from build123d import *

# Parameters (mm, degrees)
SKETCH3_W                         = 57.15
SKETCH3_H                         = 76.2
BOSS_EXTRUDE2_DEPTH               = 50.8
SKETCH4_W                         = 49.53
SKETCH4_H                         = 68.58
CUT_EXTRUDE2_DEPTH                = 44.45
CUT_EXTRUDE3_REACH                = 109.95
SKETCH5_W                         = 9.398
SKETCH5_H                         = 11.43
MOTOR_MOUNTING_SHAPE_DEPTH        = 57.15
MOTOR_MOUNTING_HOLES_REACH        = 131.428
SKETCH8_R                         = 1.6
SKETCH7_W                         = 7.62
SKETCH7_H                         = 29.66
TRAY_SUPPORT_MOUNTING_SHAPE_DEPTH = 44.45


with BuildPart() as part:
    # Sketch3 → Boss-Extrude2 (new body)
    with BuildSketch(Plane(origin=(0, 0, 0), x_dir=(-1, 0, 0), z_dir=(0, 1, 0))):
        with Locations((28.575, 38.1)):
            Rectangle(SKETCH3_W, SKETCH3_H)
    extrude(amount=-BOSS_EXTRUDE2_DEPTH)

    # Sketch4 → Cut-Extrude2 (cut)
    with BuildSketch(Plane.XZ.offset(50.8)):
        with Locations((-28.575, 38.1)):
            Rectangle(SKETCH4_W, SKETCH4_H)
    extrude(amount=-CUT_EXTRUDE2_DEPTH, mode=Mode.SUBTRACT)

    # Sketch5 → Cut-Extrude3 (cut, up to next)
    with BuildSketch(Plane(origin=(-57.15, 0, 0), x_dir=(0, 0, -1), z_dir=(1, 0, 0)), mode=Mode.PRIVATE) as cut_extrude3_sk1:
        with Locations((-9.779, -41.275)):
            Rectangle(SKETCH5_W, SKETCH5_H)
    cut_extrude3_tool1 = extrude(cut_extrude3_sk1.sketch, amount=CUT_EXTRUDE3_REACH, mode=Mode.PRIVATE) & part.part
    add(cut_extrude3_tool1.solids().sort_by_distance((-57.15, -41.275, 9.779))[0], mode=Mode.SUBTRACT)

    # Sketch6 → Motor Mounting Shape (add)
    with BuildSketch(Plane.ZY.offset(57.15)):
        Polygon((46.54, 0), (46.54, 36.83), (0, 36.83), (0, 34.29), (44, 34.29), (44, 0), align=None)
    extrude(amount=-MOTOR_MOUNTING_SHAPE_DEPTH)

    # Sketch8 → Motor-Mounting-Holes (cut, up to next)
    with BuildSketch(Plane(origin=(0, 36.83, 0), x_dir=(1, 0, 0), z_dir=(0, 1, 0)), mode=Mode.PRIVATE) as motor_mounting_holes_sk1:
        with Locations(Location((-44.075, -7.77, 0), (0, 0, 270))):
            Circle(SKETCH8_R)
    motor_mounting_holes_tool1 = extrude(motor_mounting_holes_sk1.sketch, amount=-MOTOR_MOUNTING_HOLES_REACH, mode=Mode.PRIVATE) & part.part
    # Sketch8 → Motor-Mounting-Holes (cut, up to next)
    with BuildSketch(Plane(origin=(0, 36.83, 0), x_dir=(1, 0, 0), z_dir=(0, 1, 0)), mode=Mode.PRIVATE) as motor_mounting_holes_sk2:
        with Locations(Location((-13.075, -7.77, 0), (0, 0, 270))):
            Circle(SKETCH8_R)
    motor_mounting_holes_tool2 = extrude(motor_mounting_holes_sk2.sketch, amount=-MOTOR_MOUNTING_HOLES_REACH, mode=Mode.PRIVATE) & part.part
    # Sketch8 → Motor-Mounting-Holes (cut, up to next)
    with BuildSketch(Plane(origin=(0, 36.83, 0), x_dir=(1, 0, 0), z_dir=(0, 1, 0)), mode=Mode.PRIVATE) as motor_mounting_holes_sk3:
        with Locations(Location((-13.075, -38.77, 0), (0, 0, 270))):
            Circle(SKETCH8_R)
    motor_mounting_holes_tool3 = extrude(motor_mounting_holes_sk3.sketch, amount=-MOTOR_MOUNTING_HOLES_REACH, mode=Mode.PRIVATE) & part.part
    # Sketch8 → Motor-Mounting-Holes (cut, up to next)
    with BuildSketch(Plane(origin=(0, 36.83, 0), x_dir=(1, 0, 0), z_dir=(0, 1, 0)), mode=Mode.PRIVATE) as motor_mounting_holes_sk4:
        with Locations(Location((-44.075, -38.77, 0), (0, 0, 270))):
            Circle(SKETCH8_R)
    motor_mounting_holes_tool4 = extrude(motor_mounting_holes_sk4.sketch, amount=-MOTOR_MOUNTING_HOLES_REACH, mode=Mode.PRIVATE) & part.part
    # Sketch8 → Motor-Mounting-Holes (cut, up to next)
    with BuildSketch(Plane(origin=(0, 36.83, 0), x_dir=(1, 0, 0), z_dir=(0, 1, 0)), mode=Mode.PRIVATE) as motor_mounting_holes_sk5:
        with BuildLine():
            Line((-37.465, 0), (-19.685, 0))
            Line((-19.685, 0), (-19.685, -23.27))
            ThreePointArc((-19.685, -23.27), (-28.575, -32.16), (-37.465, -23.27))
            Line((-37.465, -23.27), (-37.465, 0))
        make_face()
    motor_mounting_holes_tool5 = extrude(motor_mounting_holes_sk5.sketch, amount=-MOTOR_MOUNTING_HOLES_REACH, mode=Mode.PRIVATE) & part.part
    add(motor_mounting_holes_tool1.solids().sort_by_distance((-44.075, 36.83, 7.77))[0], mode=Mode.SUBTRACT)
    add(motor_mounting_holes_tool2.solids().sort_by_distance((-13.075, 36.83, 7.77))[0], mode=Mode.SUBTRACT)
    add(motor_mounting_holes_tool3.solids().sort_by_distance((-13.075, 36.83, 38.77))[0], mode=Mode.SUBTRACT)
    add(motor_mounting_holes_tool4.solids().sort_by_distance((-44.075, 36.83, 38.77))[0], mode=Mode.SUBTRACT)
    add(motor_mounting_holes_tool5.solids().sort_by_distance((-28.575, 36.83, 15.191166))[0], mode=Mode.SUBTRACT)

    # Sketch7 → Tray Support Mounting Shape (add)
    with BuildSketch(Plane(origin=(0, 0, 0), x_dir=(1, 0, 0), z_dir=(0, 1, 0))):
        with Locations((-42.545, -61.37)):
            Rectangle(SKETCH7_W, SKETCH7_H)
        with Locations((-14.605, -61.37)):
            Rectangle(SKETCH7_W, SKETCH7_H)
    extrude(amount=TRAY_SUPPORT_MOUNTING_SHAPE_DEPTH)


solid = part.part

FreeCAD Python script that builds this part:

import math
import FreeCAD as App
import Part
import Sketcher

V = App.Vector
Q = App.Units.Quantity

doc = App.newDocument("Part")
body = doc.addObject("PartDesign::Body", "Body")

# Sketch on XZ plane
sketch1 = body.newObject("Sketcher::SketchObject", "Sketch")
sketch1.AttachmentSupport = (doc.getObject("XZ_Plane"), [""])
sketch1.MapMode = "FlatFace"
sketch1.addGeometry(Part.LineSegment(V(0, 76, 0), V(0, 0, 0)), False)
sketch1.addGeometry(Part.LineSegment(V(0, 0, 0), V(-57, 0, 0)), False)
sketch1.addGeometry(Part.LineSegment(V(-57, 0, 0), V(-57, 76, 0)), False)
sketch1.addGeometry(Part.LineSegment(V(-57, 76, 0), V(0, 76, 0)), False)
sketch1.addConstraint(Sketcher.Constraint("Coincident", 0, 2, 1, 1))
sketch1.addConstraint(Sketcher.Constraint("Coincident", 1, 2, 2, 1))
sketch1.addConstraint(Sketcher.Constraint("Coincident", 2, 2, 3, 1))
sketch1.addConstraint(Sketcher.Constraint("Coincident", 3, 2, 0, 1))
sketch1.addConstraint(Sketcher.Constraint("Vertical", 0))
sketch1.addConstraint(Sketcher.Constraint("Horizontal", 1))
sketch1.addConstraint(Sketcher.Constraint("Vertical", 2))
sketch1.addConstraint(Sketcher.Constraint("Horizontal", 3))
sketch1.addConstraint(Sketcher.Constraint("Coincident", 0, 2, -1, 1))
sketch1.addConstraint(Sketcher.Constraint("DistanceY", 0, 2, 0, 1, Q("3 in")))
sketch1.addConstraint(Sketcher.Constraint("DistanceX", 1, 2, 1, 1, Q("2.25 in")))
pad1 = body.newObject("PartDesign::Pad", "Pad")
pad1.Profile = sketch1
pad1.Length = Q("2 in")

# Sketch on XZ plane
sketch2 = body.newObject("Sketcher::SketchObject", "Sketch001")
sketch2.AttachmentSupport = (doc.getObject("XZ_Plane"), [""])
sketch2.MapMode = "FlatFace"
sketch2.AttachmentOffset = App.Placement(V(0, 0, 2 * 25.4), App.Rotation())
sketch2.addGeometry(Part.LineSegment(V(-53, 72, 0), V(-53, 4, 0)), False)
sketch2.addGeometry(Part.LineSegment(V(-53, 4, 0), V(-4, 4, 0)), False)
sketch2.addGeometry(Part.LineSegment(V(-4, 4, 0), V(-4, 72, 0)), False)
sketch2.addGeometry(Part.LineSegment(V(-4, 72, 0), V(-53, 72, 0)), False)
sketch2.addConstraint(Sketcher.Constraint("Coincident", 0, 2, 1, 1))
sketch2.addConstraint(Sketcher.Constraint("Coincident", 1, 2, 2, 1))
sketch2.addConstraint(Sketcher.Constraint("Coincident", 2, 2, 3, 1))
sketch2.addConstraint(Sketcher.Constraint("Coincident", 3, 2, 0, 1))
sketch2.addConstraint(Sketcher.Constraint("Vertical", 0))
sketch2.addConstraint(Sketcher.Constraint("Horizontal", 1))
sketch2.addConstraint(Sketcher.Constraint("Vertical", 2))
sketch2.addConstraint(Sketcher.Constraint("Horizontal", 3))
sketch2.addConstraint(Sketcher.Constraint("DistanceY", 0, 2, 0, 1, Q("2.7 in")))
sketch2.addConstraint(Sketcher.Constraint("DistanceX", 1, 1, 1, 2, Q("1.95 in")))
sketch2.addConstraint(Sketcher.Constraint("DistanceX", 0, 2, -1, 1, Q("2.1 in")))
sketch2.addConstraint(Sketcher.Constraint("DistanceY", -1, 1, 0, 2, Q("0.15 in")))
pocket1 = body.newObject("PartDesign::Pocket", "Pocket")
pocket1.Profile = sketch2
pocket1.Length = Q("1.75 in")

# Sketch on YZ plane
sketch3 = body.newObject("Sketcher::SketchObject", "Sketch002")
sketch3.AttachmentSupport = (doc.getObject("YZ_Plane"), [""])
sketch3.MapMode = "FlatFace"
sketch3.AttachmentOffset = App.Placement(V(0, 0, -2.25 * 25.4), App.Rotation())
sketch3.addGeometry(Part.LineSegment(V(-36, 14, 0), V(-47, 14, 0)), False)
sketch3.addGeometry(Part.LineSegment(V(-47, 14, 0), V(-47, 5, 0)), False)
sketch3.addGeometry(Part.LineSegment(V(-47, 5, 0), V(-36, 5, 0)), False)
sketch3.addGeometry(Part.LineSegment(V(-36, 5, 0), V(-36, 14, 0)), False)
sketch3.addConstraint(Sketcher.Constraint("Coincident", 0, 2, 1, 1))
sketch3.addConstraint(Sketcher.Constraint("Coincident", 1, 2, 2, 1))
sketch3.addConstraint(Sketcher.Constraint("Coincident", 2, 2, 3, 1))
sketch3.addConstraint(Sketcher.Constraint("Coincident", 3, 2, 0, 1))
sketch3.addConstraint(Sketcher.Constraint("Horizontal", 0))
sketch3.addConstraint(Sketcher.Constraint("Vertical", 1))
sketch3.addConstraint(Sketcher.Constraint("Horizontal", 2))
sketch3.addConstraint(Sketcher.Constraint("Vertical", 3))
sketch3.addConstraint(Sketcher.Constraint("DistanceX", 0, 2, 0, 1, Q("0.45 in")))
sketch3.addConstraint(Sketcher.Constraint("DistanceY", 1, 2, 1, 1, Q("0.37 in")))
sketch3.addConstraint(Sketcher.Constraint("DistanceY", -1, 1, 1, 2, Q("0.2 in")))
sketch3.addConstraint(Sketcher.Constraint("DistanceX", 2, 2, -1, 1, Q("1.4 in")))
pocket2 = body.newObject("PartDesign::Pocket", "Pocket001")
pocket2.Profile = sketch3
pocket2.Type = "UpToFirst"
pocket2.Reversed = True

# Sketch on YZ plane
sketch4 = body.newObject("Sketcher::SketchObject", "Sketch003")
sketch4.AttachmentSupport = (doc.getObject("YZ_Plane"), [""])
sketch4.MapMode = "FlatFace"
sketch4.AttachmentOffset = App.Placement(V(0, 0, -2.25 * 25.4), App.Rotation())
sketch4.addGeometry(Part.LineSegment(V(0, 46.5, 0), V(36.8, 46.5, 0)), False)
sketch4.addGeometry(Part.LineSegment(V(36.8, 46.5, 0), V(36.8, 0, 0)), False)
sketch4.addGeometry(Part.LineSegment(V(36.8, 0, 0), V(34.3, 0, 0)), False)
sketch4.addGeometry(Part.LineSegment(V(34.3, 0, 0), V(34.3, 44, 0)), False)
sketch4.addGeometry(Part.LineSegment(V(34.3, 44, 0), V(0, 44, 0)), False)
sketch4.addGeometry(Part.LineSegment(V(0, 44, 0), V(0, 46.5, 0)), False)
sketch4.addConstraint(Sketcher.Constraint("Coincident", 0, 2, 1, 1))
sketch4.addConstraint(Sketcher.Constraint("Coincident", 1, 2, 2, 1))
sketch4.addConstraint(Sketcher.Constraint("Coincident", 2, 2, 3, 1))
sketch4.addConstraint(Sketcher.Constraint("Coincident", 3, 2, 4, 1))
sketch4.addConstraint(Sketcher.Constraint("Coincident", 4, 2, 5, 1))
sketch4.addConstraint(Sketcher.Constraint("Coincident", 5, 2, 0, 1))
sketch4.addConstraint(Sketcher.Constraint("Horizontal", 0))
sketch4.addConstraint(Sketcher.Constraint("Vertical", 1))
sketch4.addConstraint(Sketcher.Constraint("Horizontal", 2))
sketch4.addConstraint(Sketcher.Constraint("Vertical", 3))
sketch4.addConstraint(Sketcher.Constraint("Horizontal", 4))
sketch4.addConstraint(Sketcher.Constraint("Vertical", 5))
sketch4.addConstraint(Sketcher.Constraint("PointOnObject", 1, 2, -1))
sketch4.addConstraint(Sketcher.Constraint("PointOnObject", 4, 2, -2))
sketch4.addConstraint(Sketcher.Constraint("Equal", 2, 5))
sketch4.addConstraint(Sketcher.Constraint("DistanceX", 2, 2, 2, 1, Q("0.1 in")))
sketch4.addConstraint(Sketcher.Constraint("DistanceX", 0, 1, 0, 2, Q("1.45 in")))
sketch4.addConstraint(Sketcher.Constraint("DistanceY", 1, 2, 1, 1, 46.54))
pad2 = body.newObject("PartDesign::Pad", "Pad001")
pad2.Profile = sketch4
pad2.Length = Q("2.25 in")

# Sketch on XZ plane
sketch5 = body.newObject("Sketcher::SketchObject", "Sketch004")
sketch5.AttachmentSupport = (doc.getObject("XZ_Plane"), [""])
sketch5.MapMode = "FlatFace"
sketch5.AttachmentOffset = App.Placement(V(0, 0, -1.45 * 25.4), App.Rotation())
sketch5.addGeometry(Part.Circle(V(-44.1, 7.8, 0), V(0, 0, 1), 1.6), False)
sketch5.addConstraint(Sketcher.Constraint("Diameter", 0, 3.2))
sketch5.addConstraint(Sketcher.Constraint("DistanceX", 0, 3, -1, 1, 44.075))
sketch5.addConstraint(Sketcher.Constraint("DistanceY", -1, 1, 0, 3, 7.77))
pocket3 = body.newObject("PartDesign::Pocket", "Pocket002")
pocket3.Profile = sketch5
pocket3.Type = "UpToFirst"
pocket3.Reversed = True

# Sketch on XZ plane
sketch6 = body.newObject("Sketcher::SketchObject", "Sketch005")
sketch6.AttachmentSupport = (doc.getObject("XZ_Plane"), [""])
sketch6.MapMode = "FlatFace"
sketch6.AttachmentOffset = App.Placement(V(0, 0, -1.45 * 25.4), App.Rotation())
sketch6.addGeometry(Part.Circle(V(-13.1, 7.8, 0), V(0, 0, 1), 1.6), False)
sketch6.addConstraint(Sketcher.Constraint("Diameter", 0, 3.2))
sketch6.addConstraint(Sketcher.Constraint("DistanceX", 0, 3, -1, 1, 13.075))
sketch6.addConstraint(Sketcher.Constraint("DistanceY", -1, 1, 0, 3, 7.77))
pocket4 = body.newObject("PartDesign::Pocket", "Pocket003")
pocket4.Profile = sketch6
pocket4.Type = "UpToFirst"
pocket4.Reversed = True

# Sketch on XZ plane
sketch7 = body.newObject("Sketcher::SketchObject", "Sketch006")
sketch7.AttachmentSupport = (doc.getObject("XZ_Plane"), [""])
sketch7.MapMode = "FlatFace"
sketch7.AttachmentOffset = App.Placement(V(0, 0, -1.45 * 25.4), App.Rotation())
sketch7.addGeometry(Part.Circle(V(-13.1, 38.8, 0), V(0, 0, 1), 1.6), False)
sketch7.addConstraint(Sketcher.Constraint("Diameter", 0, 3.2))
sketch7.addConstraint(Sketcher.Constraint("DistanceX", 0, 3, -1, 1, 13.075))
sketch7.addConstraint(Sketcher.Constraint("DistanceY", -1, 1, 0, 3, 38.77))
pocket5 = body.newObject("PartDesign::Pocket", "Pocket004")
pocket5.Profile = sketch7
pocket5.Type = "UpToFirst"
pocket5.Reversed = True

# Sketch on XZ plane
sketch8 = body.newObject("Sketcher::SketchObject", "Sketch007")
sketch8.AttachmentSupport = (doc.getObject("XZ_Plane"), [""])
sketch8.MapMode = "FlatFace"
sketch8.AttachmentOffset = App.Placement(V(0, 0, -1.45 * 25.4), App.Rotation())
sketch8.addGeometry(Part.Circle(V(-44.1, 38.8, 0), V(0, 0, 1), 1.6), False)
sketch8.addConstraint(Sketcher.Constraint("Diameter", 0, 3.2))
sketch8.addConstraint(Sketcher.Constraint("DistanceX", 0, 3, -1, 1, 44.075))
sketch8.addConstraint(Sketcher.Constraint("DistanceY", -1, 1, 0, 3, 38.77))
pocket6 = body.newObject("PartDesign::Pocket", "Pocket005")
pocket6.Profile = sketch8
pocket6.Type = "UpToFirst"
pocket6.Reversed = True

# Sketch on XZ plane
sketch9 = body.newObject("Sketcher::SketchObject", "Sketch008")
sketch9.AttachmentSupport = (doc.getObject("XZ_Plane"), [""])
sketch9.MapMode = "FlatFace"
sketch9.AttachmentOffset = App.Placement(V(0, 0, -1.45 * 25.4), App.Rotation())
sketch9.addGeometry(Part.LineSegment(V(-20, 0, 0), V(-37, 0, 0)), False)
sketch9.addGeometry(Part.LineSegment(V(-37, 0, 0), V(-37, 23, 0)), False)
sketch9.addGeometry(Part.ArcOfCircle(Part.Circle(V(-29, 23, 0), V(0, 0, 1), 9), math.radians(0), math.radians(180)), False)
sketch9.addGeometry(Part.LineSegment(V(-20, 23, 0), V(-20, 0, 0)), False)
sketch9.addConstraint(Sketcher.Constraint("Coincident", 0, 2, 1, 1))
sketch9.addConstraint(Sketcher.Constraint("Tangent", 1, 2, 2, 2))
sketch9.addConstraint(Sketcher.Constraint("Tangent", 2, 1, 3, 1))
sketch9.addConstraint(Sketcher.Constraint("Coincident", 3, 2, 0, 1))
sketch9.addConstraint(Sketcher.Constraint("Horizontal", 0))
sketch9.addConstraint(Sketcher.Constraint("Vertical", 1))
sketch9.addConstraint(Sketcher.Constraint("Vertical", 3))
sketch9.addConstraint(Sketcher.Constraint("PointOnObject", 0, 2, -1))
sketch9.addConstraint(Sketcher.Constraint("Radius", 2, Q("0.35 in")))
sketch9.addConstraint(Sketcher.Constraint("DistanceX", 2, 3, -1, 1, Q("1.125 in")))
sketch9.addConstraint(Sketcher.Constraint("DistanceY", 1, 1, 1, 2, 23.27))
pocket7 = body.newObject("PartDesign::Pocket", "Pocket006")
pocket7.Profile = sketch9
pocket7.Type = "UpToFirst"
pocket7.Reversed = True

# Sketch on XZ plane
sketch10 = body.newObject("Sketcher::SketchObject", "Sketch009")
sketch10.AttachmentSupport = (doc.getObject("XZ_Plane"), [""])
sketch10.MapMode = "FlatFace"
sketch10.addGeometry(Part.LineSegment(V(-46, 47, 0), V(-46, 76, 0)), False)
sketch10.addGeometry(Part.LineSegment(V(-46, 76, 0), V(-39, 76, 0)), False)
sketch10.addGeometry(Part.LineSegment(V(-39, 76, 0), V(-39, 47, 0)), False)
sketch10.addGeometry(Part.LineSegment(V(-39, 47, 0), V(-46, 47, 0)), False)
sketch10.addGeometry(Part.LineSegment(V(-18, 47, 0), V(-18, 76, 0)), False)
sketch10.addGeometry(Part.LineSegment(V(-18, 76, 0), V(-11, 76, 0)), False)
sketch10.addGeometry(Part.LineSegment(V(-11, 76, 0), V(-11, 47, 0)), False)
sketch10.addGeometry(Part.LineSegment(V(-11, 47, 0), V(-18, 47, 0)), False)
sketch10.addConstraint(Sketcher.Constraint("Coincident", 0, 2, 1, 1))
sketch10.addConstraint(Sketcher.Constraint("Coincident", 1, 2, 2, 1))
sketch10.addConstraint(Sketcher.Constraint("Coincident", 2, 2, 3, 1))
sketch10.addConstraint(Sketcher.Constraint("Coincident", 3, 2, 0, 1))
sketch10.addConstraint(Sketcher.Constraint("Coincident", 4, 2, 5, 1))
sketch10.addConstraint(Sketcher.Constraint("Coincident", 5, 2, 6, 1))
sketch10.addConstraint(Sketcher.Constraint("Coincident", 6, 2, 7, 1))
sketch10.addConstraint(Sketcher.Constraint("Coincident", 7, 2, 4, 1))
sketch10.addConstraint(Sketcher.Constraint("Vertical", 0))
sketch10.addConstraint(Sketcher.Constraint("Horizontal", 1))
sketch10.addConstraint(Sketcher.Constraint("Vertical", 2))
sketch10.addConstraint(Sketcher.Constraint("Horizontal", 3))
sketch10.addConstraint(Sketcher.Constraint("Vertical", 4))
sketch10.addConstraint(Sketcher.Constraint("Horizontal", 5))
sketch10.addConstraint(Sketcher.Constraint("Vertical", 6))
sketch10.addConstraint(Sketcher.Constraint("Horizontal", 7))
sketch10.addConstraint(Sketcher.Constraint("Horizontal", 1, 2, 4, 2))
sketch10.addConstraint(Sketcher.Constraint("Horizontal", 3, 2, 6, 2))
sketch10.addConstraint(Sketcher.Constraint("Equal", 3, 5))
sketch10.addConstraint(Sketcher.Constraint("DistanceX", 1, 1, 1, 2, Q("0.3 in")))
sketch10.addConstraint(Sketcher.Constraint("DistanceY", -1, 1, 0, 2, Q("3 in")))
sketch10.addConstraint(Sketcher.Constraint("DistanceX", 1, 2, 4, 2, Q("0.8 in")))
sketch10.addConstraint(Sketcher.Constraint("DistanceX", 0, 2, -1, 1, Q("1.825 in")))
sketch10.addConstraint(Sketcher.Constraint("DistanceY", 0, 1, 0, 2, 29.66))
pad3 = body.newObject("PartDesign::Pad", "Pad002")
pad3.Profile = sketch10
pad3.Length = Q("1.75 in")
pad3.Reversed = True

doc.recompute()
